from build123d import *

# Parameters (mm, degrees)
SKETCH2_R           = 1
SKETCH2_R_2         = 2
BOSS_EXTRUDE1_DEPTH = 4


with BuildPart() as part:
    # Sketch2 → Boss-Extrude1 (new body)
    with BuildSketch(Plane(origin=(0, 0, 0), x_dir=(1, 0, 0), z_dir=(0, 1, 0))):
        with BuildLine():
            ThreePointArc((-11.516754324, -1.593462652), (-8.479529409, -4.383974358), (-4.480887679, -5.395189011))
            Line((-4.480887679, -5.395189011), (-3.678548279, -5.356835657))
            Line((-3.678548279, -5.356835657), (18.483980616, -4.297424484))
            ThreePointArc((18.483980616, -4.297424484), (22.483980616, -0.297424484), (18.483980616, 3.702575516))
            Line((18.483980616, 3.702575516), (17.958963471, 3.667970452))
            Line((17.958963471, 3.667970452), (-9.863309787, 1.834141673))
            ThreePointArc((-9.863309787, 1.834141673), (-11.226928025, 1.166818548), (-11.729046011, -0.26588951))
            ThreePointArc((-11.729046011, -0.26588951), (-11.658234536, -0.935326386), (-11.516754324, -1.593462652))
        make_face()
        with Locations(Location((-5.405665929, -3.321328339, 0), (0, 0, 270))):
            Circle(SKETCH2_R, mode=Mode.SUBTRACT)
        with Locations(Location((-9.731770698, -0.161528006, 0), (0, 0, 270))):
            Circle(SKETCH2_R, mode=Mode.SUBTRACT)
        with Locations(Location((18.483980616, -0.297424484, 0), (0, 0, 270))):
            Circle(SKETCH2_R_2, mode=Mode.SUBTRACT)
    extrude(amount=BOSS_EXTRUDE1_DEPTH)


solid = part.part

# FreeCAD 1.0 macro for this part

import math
import FreeCAD as App
import Part
import Sketcher
from FreeCAD import Vector
Q = App.Units.Quantity

doc = App.newDocument("Part")
params = doc.addObject("Spreadsheet::Sheet", "Params")
for row, (alias, value) in enumerate([
    ("sketch1_diameter", "2 mm"),
    ("sketch1_diameter2", "4 mm"),
    ("sketch1_radius", "4 mm"),
    ("pad1_length", "4 mm"),
], start=1):
    params.set(f"A{row}", alias)
    params.set(f"B{row}", "=" + value)
    params.setAlias(f"B{row}", alias)

body = doc.addObject("PartDesign::Body", "Body")

# Sketch on XZ plane
sketch1 = doc.addObject("Sketcher::SketchObject", "Sketch")
body.addObject(sketch1)
sketch1.AttachmentSupport = (doc.XZ_Plane, [""])
sketch1.MapMode = "FlatFace"
sketch1.addGeometry([
    Part.ArcOfCircle(Part.Circle(Vector(-4.5, -3, 0), Vector(0, 0, 1), 8.4), math.radians(90), math.radians(147)),  # 0
    Part.LineSegment(Vector(-4.5, 5.4, 0), Vector(-3.7, 5.4, 0)),  # 1
    Part.LineSegment(Vector(-3.7, 5.4, 0), Vector(18.5, 4.3, 0)),  # 2
    Part.ArcOfCircle(Part.Circle(Vector(18.5, 0.3, 0), Vector(0, 0, 1), 4), math.radians(-90), math.radians(90)),  # 3
    Part.LineSegment(Vector(18.5, -3.7, 0), Vector(18, -3.7, 0)),  # 4
    Part.LineSegment(Vector(18, -3.7, 0), Vector(-9.9, -1.8, 0)),  # 5
    Part.ArcOfCircle(Part.Circle(Vector(-9.7, 0.2, 0), Vector(0, 0, 1), 2), math.radians(177), math.radians(266)),  # 6
    Part.ArcOfCircle(Part.Circle(Vector(-5.4, -0.1, 0), Vector(0, 0, 1), 6.3), math.radians(164.82), math.radians(177.01)),  # 7
    Part.Circle(Vector(-5.4, 3.3, 0), Vector(0, 0, 1), 1),  # 8
    Part.Circle(Vector(-9.7, 0.2, 0), Vector(0, 0, 1), 1),  # 9
    Part.Circle(Vector(18.5, 0.3, 0), Vector(0, 0, 1), 2),  # 10
], False)
sketch1.addConstraint([
    Sketcher.Constraint("Coincident", 0, 1, 1, 1),
    Sketcher.Constraint("Coincident", 1, 2, 2, 1),
    Sketcher.Constraint("Coincident", 2, 2, 3, 2),
    Sketcher.Constraint("Coincident", 3, 1, 4, 1),
    Sketcher.Constraint("Coincident", 4, 2, 5, 1),
    Sketcher.Constraint("Tangent", 5, 2, 6, 2),
    Sketcher.Constraint("Tangent", 6, 1, 7, 2),
    Sketcher.Constraint("Coincident", 7, 1, 0, 2),
    Sketcher.Constraint("Coincident", 9, 3, 6, 3),
    Sketcher.Constraint("Coincident", 10, 3, 3, 3),
    Sketcher.Constraint("Equal", 8, 9),
    Sketcher.Constraint("Equal", 6, 10),
    Sketcher.Constraint("Parallel", 1, 2),
    Sketcher.Constraint("Parallel", 4, 5),
    Sketcher.Constraint("Vertical", 7, 3, 8, 3),
    Sketcher.Constraint("Vertical", 10, 3, 2, 2),
    Sketcher.Constraint("Vertical", 2, 2, 3, 1),
    Sketcher.Constraint("Diameter", 8, Q("2 mm")),
    Sketcher.Constraint("Diameter", 10, Q("4 mm")),
    Sketcher.Constraint("Radius", 3, Q("4 mm")),
    Sketcher.Constraint("Radius", 0, Q("8.411513 mm")),
    Sketcher.Constraint("Radius", 7, Q("6.332006 mm")),
    Sketcher.Constraint("DistanceY", 6, 3, 8, 3, Q("3.1598 mm")),
    Sketcher.Constraint("DistanceX", -1, 1, 3, 3, Q("18.483981 mm")),
    Sketcher.Constraint("DistanceX", 6, 3, -1, 1, Q("9.731771 mm")),
    Sketcher.Constraint("DistanceY", -1, 1, 6, 3, Q("0.161528 mm")),
    Sketcher.Constraint("DistanceY", 7, 3, -1, 1, Q("0.064519 mm")),
    Sketcher.Constraint("DistanceY", -1, 1, 0, 1, Q("5.395189 mm")),
    Sketcher.Constraint("DistanceX", 1, 2, -1, 1, Q("3.678548 mm")),
    Sketcher.Constraint("DistanceY", 4, 2, -1, 1, Q("3.66797 mm")),
    Sketcher.Constraint("DistanceX", 5, 2, -1, 1, Q("9.86331 mm")),
    Sketcher.Constraint("DistanceX", 0, 3, 3, 3, Q("22.964868 mm")),
    Sketcher.Constraint("DistanceX", 8, 3, 0, 1, Q("0.924778 mm")),
])
sketch1.setExpression("Constraints[17]", "Params.sketch1_diameter")
sketch1.setExpression("Constraints[18]", "Params.sketch1_diameter2")
sketch1.setExpression("Constraints[19]", "Params.sketch1_radius")
pad1 = doc.addObject("PartDesign::Pad", "Pad")
body.addObject(pad1)
pad1.Profile = sketch1
pad1.setExpression("Length", "Params.pad1_length")
pad1.Reversed = True

doc.recompute()
